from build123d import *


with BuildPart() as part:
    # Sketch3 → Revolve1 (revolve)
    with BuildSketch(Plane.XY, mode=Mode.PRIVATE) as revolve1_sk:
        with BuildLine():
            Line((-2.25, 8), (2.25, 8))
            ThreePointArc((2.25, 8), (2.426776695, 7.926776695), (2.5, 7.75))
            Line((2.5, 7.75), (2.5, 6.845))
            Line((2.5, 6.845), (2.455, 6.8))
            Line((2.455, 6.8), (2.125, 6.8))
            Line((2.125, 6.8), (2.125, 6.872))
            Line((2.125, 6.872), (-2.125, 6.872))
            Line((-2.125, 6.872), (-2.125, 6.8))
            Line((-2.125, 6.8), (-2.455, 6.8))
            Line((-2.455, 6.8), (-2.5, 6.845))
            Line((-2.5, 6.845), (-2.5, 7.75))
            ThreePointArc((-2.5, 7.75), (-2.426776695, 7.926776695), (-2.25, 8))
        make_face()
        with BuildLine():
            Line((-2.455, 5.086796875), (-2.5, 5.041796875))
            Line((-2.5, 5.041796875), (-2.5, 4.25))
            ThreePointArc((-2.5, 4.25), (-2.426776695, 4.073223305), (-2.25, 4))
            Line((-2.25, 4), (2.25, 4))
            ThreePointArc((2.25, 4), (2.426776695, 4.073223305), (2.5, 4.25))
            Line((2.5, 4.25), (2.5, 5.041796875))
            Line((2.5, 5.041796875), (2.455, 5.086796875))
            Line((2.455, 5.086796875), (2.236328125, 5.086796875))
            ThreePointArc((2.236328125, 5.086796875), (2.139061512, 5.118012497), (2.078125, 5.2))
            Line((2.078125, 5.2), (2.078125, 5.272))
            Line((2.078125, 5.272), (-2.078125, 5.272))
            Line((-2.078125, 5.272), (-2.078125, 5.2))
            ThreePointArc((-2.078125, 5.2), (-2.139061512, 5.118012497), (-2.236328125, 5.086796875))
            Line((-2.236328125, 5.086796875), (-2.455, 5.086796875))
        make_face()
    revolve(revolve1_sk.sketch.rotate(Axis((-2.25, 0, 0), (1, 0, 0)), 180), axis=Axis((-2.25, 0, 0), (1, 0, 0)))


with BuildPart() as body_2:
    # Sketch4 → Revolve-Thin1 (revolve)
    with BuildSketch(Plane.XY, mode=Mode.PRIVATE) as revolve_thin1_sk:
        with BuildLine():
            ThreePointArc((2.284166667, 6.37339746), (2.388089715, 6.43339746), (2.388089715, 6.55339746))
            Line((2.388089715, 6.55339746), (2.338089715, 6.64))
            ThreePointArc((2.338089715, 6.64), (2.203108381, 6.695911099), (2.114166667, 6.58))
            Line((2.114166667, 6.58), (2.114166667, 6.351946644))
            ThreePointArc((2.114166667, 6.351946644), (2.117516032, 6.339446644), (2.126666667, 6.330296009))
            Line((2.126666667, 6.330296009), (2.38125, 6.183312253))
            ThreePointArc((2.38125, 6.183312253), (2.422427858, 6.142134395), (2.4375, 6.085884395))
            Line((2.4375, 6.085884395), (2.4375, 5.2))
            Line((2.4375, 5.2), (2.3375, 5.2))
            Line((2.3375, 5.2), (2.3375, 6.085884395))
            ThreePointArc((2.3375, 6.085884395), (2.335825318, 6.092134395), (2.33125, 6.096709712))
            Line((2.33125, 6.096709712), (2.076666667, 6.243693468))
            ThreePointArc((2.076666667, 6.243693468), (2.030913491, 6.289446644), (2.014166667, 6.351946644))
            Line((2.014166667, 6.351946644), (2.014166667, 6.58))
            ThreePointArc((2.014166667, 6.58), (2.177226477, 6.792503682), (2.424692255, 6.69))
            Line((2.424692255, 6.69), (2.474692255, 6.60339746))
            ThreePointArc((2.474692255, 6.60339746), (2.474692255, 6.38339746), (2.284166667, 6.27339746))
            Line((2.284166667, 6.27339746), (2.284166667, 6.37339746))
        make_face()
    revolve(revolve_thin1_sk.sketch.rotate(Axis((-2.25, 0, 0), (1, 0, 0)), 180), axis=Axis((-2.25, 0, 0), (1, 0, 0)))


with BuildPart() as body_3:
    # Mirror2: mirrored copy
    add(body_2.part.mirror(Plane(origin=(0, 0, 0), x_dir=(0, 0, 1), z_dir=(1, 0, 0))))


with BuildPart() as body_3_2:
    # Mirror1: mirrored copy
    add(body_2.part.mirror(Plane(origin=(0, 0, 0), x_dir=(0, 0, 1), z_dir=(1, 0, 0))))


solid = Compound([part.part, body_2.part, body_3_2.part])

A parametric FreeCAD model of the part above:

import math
import FreeCAD as App
import Part
import Sketcher
from FreeCAD import Vector
Q = App.Units.Quantity

doc = App.newDocument("Part")
body = doc.addObject("PartDesign::Body", "Body")
body.AllowCompound = True

sketch1 = doc.addObject("Sketcher::SketchObject", "Sketch")
body.addObject(sketch1)
sketch1.AttachmentSupport = (doc.XY_Plane, [""])
sketch1.MapMode = "FlatFace"
sketch1.addGeometry([
    Part.LineSegment(Vector(2.25, 8, 0), Vector(-2.25, 8, 0)),
    Part.ArcOfCircle(Part.Circle(Vector(-2.25, 7.75, 0), Vector(0, 0, 1), 0.25), math.radians(90), math.radians(180)),
    Part.LineSegment(Vector(-2.5, 7.75, 0), Vector(-2.5, 6.84, 0)),
    Part.LineSegment(Vector(-2.5, 6.84, 0), Vector(-2.46, 6.8, 0)),
    Part.LineSegment(Vector(-2.46, 6.8, 0), Vector(-2.12, 6.8, 0)),
    Part.LineSegment(Vector(-2.12, 6.8, 0), Vector(-2.12, 6.87, 0)),
    Part.LineSegment(Vector(-2.12, 6.87, 0), Vector(2.12, 6.87, 0)),
    Part.LineSegment(Vector(2.12, 6.87, 0), Vector(2.12, 6.8, 0)),
    Part.LineSegment(Vector(2.12, 6.8, 0), Vector(2.46, 6.8, 0)),
    Part.LineSegment(Vector(2.46, 6.8, 0), Vector(2.5, 6.84, 0)),
    Part.LineSegment(Vector(2.5, 6.84, 0), Vector(2.5, 7.75, 0)),
    Part.ArcOfCircle(Part.Circle(Vector(2.25, 7.75, 0), Vector(0, 0, 1), 0.25), math.radians(0), math.radians(90)),
    Part.LineSegment(Vector(-2.46, 5.09, 0), Vector(-2.5, 5.04, 0)),
    Part.LineSegment(Vector(-2.5, 5.04, 0), Vector(-2.5, 4.25, 0)),
    Part.ArcOfCircle(Part.Circle(Vector(-2.25, 4.25, 0), Vector(0, 0, 1), 0.25), math.radians(-180), math.radians(-90)),
    Part.LineSegment(Vector(-2.25, 4, 0), Vector(2.25, 4, 0)),
    Part.ArcOfCircle(Part.Circle(Vector(2.25, 4.25, 0), Vector(0, 0, 1), 0.25), math.radians(-90), math.radians(0)),
    Part.LineSegment(Vector(2.5, 4.25, 0), Vector(2.5, 5.04, 0)),
    Part.LineSegment(Vector(2.5, 5.04, 0), Vector(2.46, 5.09, 0)),
    Part.LineSegment(Vector(2.46, 5.09, 0), Vector(2.24, 5.09, 0)),
    Part.ArcOfCircle(Part.Circle(Vector(2.24, 5.25, 0), Vector(0, 0, 1), 0.17), math.radians(-161), math.radians(-90)),
    Part.LineSegment(Vector(2.08, 5.2, 0), Vector(2.08, 5.27, 0)),
    Part.LineSegment(Vector(2.08, 5.27, 0), Vector(-2.08, 5.27, 0)),
    Part.LineSegment(Vector(-2.08, 5.27, 0), Vector(-2.08, 5.2, 0)),
    Part.ArcOfCircle(Part.Circle(Vector(-2.24, 5.25, 0), Vector(0, 0, 1), 0.17), math.radians(-90), math.radians(-19)),
    Part.LineSegment(Vector(-2.24, 5.09, 0), Vector(-2.46, 5.09, 0)),
], False)
sketch1.addConstraint([
    Sketcher.Constraint("Tangent", 0, 2, 1, 1),
    Sketcher.Constraint("Tangent", 1, 2, 2, 1),
    Sketcher.Constraint("Coincident", 2, 2, 3, 1),
    Sketcher.Constraint("Coincident", 3, 2, 4, 1),
    Sketcher.Constraint("Coincident", 4, 2, 5, 1),
    Sketcher.Constraint("Coincident", 5, 2, 6, 1),
    Sketcher.Constraint("Coincident", 6, 2, 7, 1),
    Sketcher.Constraint("Coincident", 7, 2, 8, 1),
    Sketcher.Constraint("Coincident", 8, 2, 9, 1),
    Sketcher.Constraint("Coincident", 9, 2, 10, 1),
    Sketcher.Constraint("Tangent", 10, 2, 11, 1),
    Sketcher.Constraint("Tangent", 11, 2, 0, 1),
    Sketcher.Constraint("Coincident", 12, 2, 13, 1),
    Sketcher.Constraint("Tangent", 13, 2, 14, 1),
    Sketcher.Constraint("Tangent", 14, 2, 15, 1),
    Sketcher.Constraint("Tangent", 15, 2, 16, 1),
    Sketcher.Constraint("Tangent", 16, 2, 17, 1),
    Sketcher.Constraint("Coincident", 17, 2, 18, 1),
    Sketcher.Constraint("Coincident", 18, 2, 19, 1),
    Sketcher.Constraint("Tangent", 19, 2, 20, 2),
    Sketcher.Constraint("Coincident", 20, 1, 21, 1),
    Sketcher.Constraint("Coincident", 21, 2, 22, 1),
    Sketcher.Constraint("Coincident", 22, 2, 23, 1),
    Sketcher.Constraint("Coincident", 23, 2, 24, 2),
    Sketcher.Constraint("Tangent", 24, 1, 25, 1),
    Sketcher.Constraint("Coincident", 25, 2, 12, 1),
    Sketcher.Constraint("Horizontal", 0),
    Sketcher.Constraint("Vertical", 2),
    Sketcher.Constraint("Horizontal", 4),
    Sketcher.Constraint("Vertical", 5),
    Sketcher.Constraint("Horizontal", 6),
    Sketcher.Constraint("Vertical", 7),
    Sketcher.Constraint("Horizontal", 8),
    Sketcher.Constraint("Vertical", 10),
    Sketcher.Constraint("Vertical", 13),
    Sketcher.Constraint("Horizontal", 15),
    Sketcher.Constraint("Vertical", 17),
    Sketcher.Constraint("Horizontal", 19),
    Sketcher.Constraint("Vertical", 21),
    Sketcher.Constraint("Horizontal", 22),
    Sketcher.Constraint("Vertical", 23),
    Sketcher.Constraint("Horizontal", 25),
    Sketcher.Constraint("Equal", 1, 11),
    Sketcher.Constraint("Equal", 11, 14),
    Sketcher.Constraint("Equal", 14, 16),
    Sketcher.Constraint("Equal", 20, 24),
    Sketcher.Constraint("Symmetric", 20, 3, 24, 3, -2),
    Sketcher.Constraint("Symmetric", 4, 2, 7, 2, -2),
    Sketcher.Constraint("Symmetric", 2, 2, 9, 2, -2),
    Sketcher.Constraint("Symmetric", 12, 2, 17, 2, -2),
    Sketcher.Constraint("Perpendicular", 3, 9),
    Sketcher.Constraint("Parallel", 9, 12),
    Sketcher.Constraint("Perpendicular", 12, 18),
    Sketcher.Constraint("Horizontal", 20, 1, 23, 2),
    Sketcher.Constraint("Vertical", 1, 3, 14, 3),
    Sketcher.Constraint("Vertical", 8, 2, 18, 2),
    Sketcher.Constraint("Vertical", 3, 2, 25, 2),
    Sketcher.Constraint("Equal", 7, 21),
    Sketcher.Constraint("Radius", 1, 0.25),
    Sketcher.Constraint("DistanceX", 0, 2, 0, 1, 4.5),
    Sketcher.Constraint("DistanceY", -1, 1, 0, 2, 8.0),
    Sketcher.Constraint("DistanceY", -1, 1, 14, 2, 4.0),
    Sketcher.Constraint("DistanceX", 4, 1, 4, 2, 0.33),
    Sketcher.Constraint("DistanceX", 6, 1, 6, 2, 4.25),
    Sketcher.Constraint("DistanceY", -1, 1, 3, 2, 6.8),
    Sketcher.Constraint("DistanceY", -1, 1, 20, 1, 5.2),
    Sketcher.Constraint("DistanceY", 5, 1, 5, 2, 0.072),
    Sketcher.Constraint("Radius", 20, 0.167147),
    Sketcher.Constraint("DistanceX", 19, 2, 19, 1, 0.218672),
    Sketcher.Constraint("DistanceX", 22, 2, 22, 1, 4.15625),
])
revolution = doc.addObject("PartDesign::Revolution", "Revolution")
body.addObject(revolution)
revolution.Profile = sketch1
revolution.ReferenceAxis = (sketch1, ["H_Axis"])
revolution.Angle = 360
body2 = doc.addObject("PartDesign::Body", "Body001")

sketch2 = doc.addObject("Sketcher::SketchObject", "Sketch001")
body2.addObject(sketch2)
sketch2.AttachmentSupport = (doc.getObject("XY_Plane001"), [""])
sketch2.MapMode = "FlatFace"
sketch2.addGeometry([
    Part.ArcOfCircle(Part.Circle(Vector(2.284, 6.493, 0), Vector(0, 0, 1), 0.12), math.radians(-90), math.radians(30)),
    Part.LineSegment(Vector(2.284, 6.373, 0), Vector(2.284, 6.273, 0)),
    Part.ArcOfCircle(Part.Circle(Vector(2.284, 6.493, 0), Vector(0, 0, 1), 0.22), math.radians(-90), math.radians(30)),
    Part.LineSegment(Vector(2.475, 6.603, 0), Vector(2.425, 6.69, 0)),
    Part.ArcOfCircle(Part.Circle(Vector(2.234, 6.58, 0), Vector(0, 0, 1), 0.22), math.radians(30), math.radians(180)),
    Part.LineSegment(Vector(2.014, 6.58, 0), Vector(2.014, 6.352, 0)),
    Part.ArcOfCircle(Part.Circle(Vector(2.139, 6.352, 0), Vector(0, 0, 1), 0.125), math.radians(180), math.radians(240)),
    Part.LineSegment(Vector(2.077, 6.244, 0), Vector(2.331, 6.097, 0)),
    Part.ArcOfCircle(Part.Circle(Vector(2.325, 6.086, 0), Vector(0, 0, 1), 0.012), math.radians(0), math.radians(60)),
    Part.LineSegment(Vector(2.337, 6.086, 0), Vector(2.337, 5.2, 0)),
    Part.LineSegment(Vector(2.337, 5.2, 0), Vector(2.438, 5.2, 0)),
    Part.LineSegment(Vector(2.438, 5.2, 0), Vector(2.438, 6.086, 0)),
    Part.ArcOfCircle(Part.Circle(Vector(2.325, 6.086, 0), Vector(0, 0, 1), 0.113), math.radians(0), math.radians(60)),
    Part.LineSegment(Vector(2.381, 6.183, 0), Vector(2.127, 6.33, 0)),
    Part.ArcOfCircle(Part.Circle(Vector(2.139, 6.352, 0), Vector(0, 0, 1), 0.025), math.radians(180), math.radians(240)),
    Part.LineSegment(Vector(2.114, 6.352, 0), Vector(2.114, 6.58, 0)),
    Part.ArcOfCircle(Part.Circle(Vector(2.234, 6.58, 0), Vector(0, 0, 1), 0.12), math.radians(30), math.radians(180)),
    Part.LineSegment(Vector(2.338, 6.64, 0), Vector(2.388, 6.553, 0)),
], False)
sketch2.addConstraint([
    Sketcher.Constraint("Coincident", 0, 1, 1, 1),
    Sketcher.Constraint("Coincident", 1, 2, 2, 1),
    Sketcher.Constraint("Tangent", 2, 2, 3, 1),
    Sketcher.Constraint("Tangent", 3, 2, 4, 1),
    Sketcher.Constraint("Tangent", 4, 2, 5, 1),
    Sketcher.Constraint("Tangent", 5, 2, 6, 1),
    Sketcher.Constraint("Tangent", 6, 2, 7, 1),
    Sketcher.Constraint("Tangent", 7, 2, 8, 2),
    Sketcher.Constraint("Tangent", 8, 1, 9, 1),
    Sketcher.Constraint("Coincident", 9, 2, 10, 1),
    Sketcher.Constraint("Coincident", 10, 2, 11, 1),
    Sketcher.Constraint("Tangent", 11, 2, 12, 1),
    Sketcher.Constraint("Tangent", 12, 2, 13, 1),
    Sketcher.Constraint("Tangent", 13, 2, 14, 2),
    Sketcher.Constraint("Tangent", 14, 1, 15, 1),
    Sketcher.Constraint("Tangent", 15, 2, 16, 2),
    Sketcher.Constraint("Tangent", 16, 1, 17, 1),
    Sketcher.Constraint("Tangent", 17, 2, 0, 2),
    Sketcher.Constraint("Vertical", 1),
    Sketcher.Constraint("Vertical", 5),
    Sketcher.Constraint("Vertical", 9),
    Sketcher.Constraint("Horizontal", 10),
    Sketcher.Constraint("Vertical", 11),
    Sketcher.Constraint("Vertical", 15),
    Sketcher.Constraint("Coincident", 2, 3, 0, 3),
    Sketcher.Constraint("Coincident", 12, 3, 8, 3),
    Sketcher.Constraint("Coincident", 14, 3, 6, 3),
    Sketcher.Constraint("Coincident", 16, 3, 4, 3),
    Sketcher.Constraint("Equal", 2, 4),
    Sketcher.Constraint("Equal", 0, 16),
    Sketcher.Constraint("Parallel", 7, 13),
    Sketcher.Constraint("Vertical", 2, 3, 0, 1),
    Sketcher.Constraint("Angle", 3, Q("120 deg")),
    Sketcher.Constraint("Angle", 7, Q("-30 deg")),
    Sketcher.Constraint("Radius", 0, 0.12),
    Sketcher.Constraint("Radius", 2, 0.22),
    Sketcher.Constraint("Radius", 6, 0.125),
    Sketcher.Constraint("Distance", 3, 0.1),
    Sketcher.Constraint("DistanceY", -1, 1, 9, 2, 5.2),
    Sketcher.Constraint("Radius", 8, 0.0125),
    Sketcher.Constraint("DistanceY", -1, 1, 4, 3, 6.58),
    Sketcher.Constraint("DistanceX", -1, 1, 8, 3, 2.325),
    Sketcher.Constraint("DistanceY", 13, 2, 0, 1, 0.043101),
    Sketcher.Constraint("DistanceY", 9, 2, 9, 1, 0.885884),
])
revolution2 = doc.addObject("PartDesign::Revolution", "Revolution001")
body2.addObject(revolution2)
revolution2.Profile = sketch2
revolution2.ReferenceAxis = (sketch2, ["H_Axis"])
revolution2.Angle = 360
body3 = doc.addObject("PartDesign::Body", "Body002")
doc.recompute()

mirroring = doc.addObject("Part::Mirroring", "Mirroring")
mirroring.Source = body2
mirroring.Base = Vector(0, 0, 0)
mirroring.Normal = Vector(1, 0, 0)
body3.BaseFeature = mirroring
doc.recompute()
body4 = doc.addObject("PartDesign::Body", "Body003")
doc.recompute()

mirroring2 = doc.addObject("Part::Mirroring", "Mirroring001")
mirroring2.Source = body2
mirroring2.Base = Vector(0, 0, 0)
mirroring2.Normal = Vector(1, 0, 0)
body4.BaseFeature = mirroring2
doc.recompute()
body3.Visibility = False
mirroring.Visibility = False
mirroring2.Visibility = False

doc.recompute()
